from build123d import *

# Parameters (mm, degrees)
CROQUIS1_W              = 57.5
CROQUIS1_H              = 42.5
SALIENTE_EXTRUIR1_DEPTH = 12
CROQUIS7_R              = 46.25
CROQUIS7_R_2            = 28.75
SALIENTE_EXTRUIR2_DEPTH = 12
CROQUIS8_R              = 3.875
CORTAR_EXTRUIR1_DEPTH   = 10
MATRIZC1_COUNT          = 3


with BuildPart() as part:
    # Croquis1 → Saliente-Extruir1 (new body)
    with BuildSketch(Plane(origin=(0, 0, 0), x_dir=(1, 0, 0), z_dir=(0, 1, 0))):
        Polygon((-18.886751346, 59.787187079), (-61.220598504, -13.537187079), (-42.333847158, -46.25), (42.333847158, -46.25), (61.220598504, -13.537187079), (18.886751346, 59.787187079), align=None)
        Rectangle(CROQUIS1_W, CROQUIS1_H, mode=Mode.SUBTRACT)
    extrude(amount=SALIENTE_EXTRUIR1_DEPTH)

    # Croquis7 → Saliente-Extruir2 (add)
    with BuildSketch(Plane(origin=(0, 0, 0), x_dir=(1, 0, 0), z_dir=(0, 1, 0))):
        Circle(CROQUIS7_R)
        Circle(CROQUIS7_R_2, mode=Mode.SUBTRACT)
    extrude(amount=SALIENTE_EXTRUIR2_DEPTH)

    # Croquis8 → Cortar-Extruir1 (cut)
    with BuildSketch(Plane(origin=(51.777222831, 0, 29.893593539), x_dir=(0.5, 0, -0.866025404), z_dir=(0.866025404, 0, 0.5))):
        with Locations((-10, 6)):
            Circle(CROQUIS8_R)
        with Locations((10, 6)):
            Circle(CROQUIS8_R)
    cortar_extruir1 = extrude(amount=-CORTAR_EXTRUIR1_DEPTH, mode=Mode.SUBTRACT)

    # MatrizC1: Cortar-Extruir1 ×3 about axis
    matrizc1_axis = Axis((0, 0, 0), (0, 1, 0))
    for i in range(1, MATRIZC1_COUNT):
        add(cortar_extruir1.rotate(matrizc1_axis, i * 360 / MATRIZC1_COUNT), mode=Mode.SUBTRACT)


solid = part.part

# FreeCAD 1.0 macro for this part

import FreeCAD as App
import Part
import Sketcher

V = App.Vector
Q = App.Units.Quantity


def add_polygon(sketch, points):
    """Adds a closed chain of lines whose ends are joined by coincident constraints."""
    first, n = sketch.GeometryCount, len(points)
    for a, b in zip(points, points[1:] + points[:1]):
        sketch.addGeometry(Part.LineSegment(App.Vector(*a, 0), App.Vector(*b, 0)), False)
    for i in range(n):
        sketch.addConstraint(Sketcher.Constraint("Coincident", first + i, 2, first + (i + 1) % n, 1))

doc = App.newDocument("Part")
params = doc.addObject("Spreadsheet::Sheet", "Params")
for row, (alias, value) in enumerate([
    ("sketch1_width", "57.5 mm"),
    ("sketch1_height", "42.5 mm"),
    ("pad1_length", "12 mm"),
    ("sketch2_diameter", "92.5 mm"),
    ("sketch2_diameter2", "57.5 mm"),
    ("pad2_length", "12 mm"),
    ("sketch3_diameter", "7.75 mm"),
    ("pocket1_length", "10 mm"),
], start=1):
    params.set(f"A{row}", alias)
    params.set(f"B{row}", "=" + value)
    params.setAlias(f"B{row}", alias)

body = doc.addObject("PartDesign::Body", "Body")

# Sketch on XZ plane
sketch1 = body.newObject("Sketcher::SketchObject", "Sketch")
sketch1.AttachmentSupport = (doc.getObject("XZ_Plane"), [""])
sketch1.MapMode = "FlatFace"
add_polygon(sketch1, [(-19, -60), (-61, 14), (-42, 46), (42, 46), (61, 14), (19, -60)])  # lines 0-5
add_polygon(sketch1, [(29, 21), (-29, 21), (-29, -21), (29, -21)])  # lines 6-9
sketch1.addConstraint(Sketcher.Constraint("Horizontal", 2))
sketch1.addConstraint(Sketcher.Constraint("Horizontal", 5))
sketch1.addConstraint(Sketcher.Constraint("Horizontal", 6))
sketch1.addConstraint(Sketcher.Constraint("Vertical", 7))
sketch1.addConstraint(Sketcher.Constraint("Horizontal", 8))
sketch1.addConstraint(Sketcher.Constraint("Vertical", 9))
sketch1.addConstraint(Sketcher.Constraint("Symmetric", 6, 2, 8, 2, -1, 1))
sketch1.addConstraint(Sketcher.Constraint("Symmetric", 0, 2, 3, 2, -2))
sketch1.addConstraint(Sketcher.Constraint("Parallel", 0, 3))
sketch1.addConstraint(Sketcher.Constraint("Parallel", 1, 4))
sketch1.addConstraint(Sketcher.Constraint("Equal", 1, 3))
sketch1.addConstraint(Sketcher.Constraint("Angle", 0, Q("120 deg")))
sketch1.addConstraint(Sketcher.Constraint("DistanceX", 6, 2, 6, 1, Q("57.5 mm")))
sketch1.addConstraint(Sketcher.Constraint("DistanceY", 7, 2, 7, 1, Q("42.5 mm")))
sketch1.addConstraint(Sketcher.Constraint("DistanceY", 6, 2, 1, 2, Q("25 mm")))
sketch1.addConstraint(Sketcher.Constraint("DistanceX", 0, 2, -1, 1, Q("61.220599 mm")))
sketch1.addConstraint(Sketcher.Constraint("DistanceX", 1, 2, 4, 2, Q("61.220599 mm")))
sketch1.addConstraint(Sketcher.Constraint("DistanceX", 2, 1, 2, 2, Q("84.667694 mm")))
sketch1.setExpression("Constraints[22]", "Params.sketch1_width")
sketch1.setExpression("Constraints[23]", "Params.sketch1_height")
pad1 = body.newObject("PartDesign::Pad", "Pad")
pad1.Profile = sketch1
pad1.setExpression("Length", "Params.pad1_length")
pad1.Reversed = True

# Sketch on XZ plane
sketch2 = body.newObject("Sketcher::SketchObject", "Sketch001")
sketch2.AttachmentSupport = (doc.getObject("XZ_Plane"), [""])
sketch2.MapMode = "FlatFace"
sketch2.addGeometry(Part.Circle(V(0, 0, 0), V(0, 0, 1), 46), False)
sketch2.addGeometry(Part.Circle(V(0, 0, 0), V(0, 0, 1), 29), False)
sketch2.addConstraint(Sketcher.Constraint("Coincident", 0, 3, -1, 1))
sketch2.addConstraint(Sketcher.Constraint("Coincident", 1, 3, -1, 1))
sketch2.addConstraint(Sketcher.Constraint("Diameter", 0, Q("92.5 mm")))
sketch2.addConstraint(Sketcher.Constraint("Diameter", 1, Q("57.5 mm")))
sketch2.setExpression("Constraints[2]", "Params.sketch2_diameter")
sketch2.setExpression("Constraints[3]", "Params.sketch2_diameter2")
pad2 = body.newObject("PartDesign::Pad", "Pad001")
pad2.Profile = sketch2
pad2.setExpression("Length", "Params.pad2_length")
pad2.Reversed = True

# Sketch on an angled plane
sketch3 = body.newObject("Sketcher::SketchObject", "Sketch002")
sketch3.Placement = App.Placement(V(51.777223, 0, 29.893594), App.Rotation(V(0.5, 0, -0.866025404), V(0, 1, 0), V(0.866025404, 0, 0.5), "ZXY"))
sketch3.addGeometry(Part.Circle(V(-10, 6, 0), V(0, 0, 1), 3.9), False)
sketch3.addGeometry(Part.Circle(V(10, 6, 0), V(0, 0, 1), 3.9), False)
sketch3.addConstraint(Sketcher.Constraint("Equal", 0, 1))
sketch3.addConstraint(Sketcher.Constraint("Symmetric", 0, 3, 1, 3, -2))
sketch3.addConstraint(Sketcher.Constraint("Diameter", 0, Q("7.75 mm")))
sketch3.addConstraint(Sketcher.Constraint("DistanceX", 0, 3, -1, 1, Q("10 mm")))
sketch3.addConstraint(Sketcher.Constraint("DistanceY", -1, 1, 0, 3, Q("6 mm")))
sketch3.setExpression("Constraints[2]", "Params.sketch3_diameter")
pocket1 = body.newObject("PartDesign::Pocket", "Pocket")
pocket1.Profile = sketch3
pocket1.setExpression("Length", "Params.pocket1_length")
doc.recompute()

polarpattern = body.newObject("PartDesign::PolarPattern", "PolarPattern")
polarpattern.Originals = [pocket1]
polarpattern.Axis = (doc.getObject("Y_Axis"), [""])
polarpattern.Angle = 360
polarpattern.Occurrences = 3
body.Tip = polarpattern

doc.recompute()
